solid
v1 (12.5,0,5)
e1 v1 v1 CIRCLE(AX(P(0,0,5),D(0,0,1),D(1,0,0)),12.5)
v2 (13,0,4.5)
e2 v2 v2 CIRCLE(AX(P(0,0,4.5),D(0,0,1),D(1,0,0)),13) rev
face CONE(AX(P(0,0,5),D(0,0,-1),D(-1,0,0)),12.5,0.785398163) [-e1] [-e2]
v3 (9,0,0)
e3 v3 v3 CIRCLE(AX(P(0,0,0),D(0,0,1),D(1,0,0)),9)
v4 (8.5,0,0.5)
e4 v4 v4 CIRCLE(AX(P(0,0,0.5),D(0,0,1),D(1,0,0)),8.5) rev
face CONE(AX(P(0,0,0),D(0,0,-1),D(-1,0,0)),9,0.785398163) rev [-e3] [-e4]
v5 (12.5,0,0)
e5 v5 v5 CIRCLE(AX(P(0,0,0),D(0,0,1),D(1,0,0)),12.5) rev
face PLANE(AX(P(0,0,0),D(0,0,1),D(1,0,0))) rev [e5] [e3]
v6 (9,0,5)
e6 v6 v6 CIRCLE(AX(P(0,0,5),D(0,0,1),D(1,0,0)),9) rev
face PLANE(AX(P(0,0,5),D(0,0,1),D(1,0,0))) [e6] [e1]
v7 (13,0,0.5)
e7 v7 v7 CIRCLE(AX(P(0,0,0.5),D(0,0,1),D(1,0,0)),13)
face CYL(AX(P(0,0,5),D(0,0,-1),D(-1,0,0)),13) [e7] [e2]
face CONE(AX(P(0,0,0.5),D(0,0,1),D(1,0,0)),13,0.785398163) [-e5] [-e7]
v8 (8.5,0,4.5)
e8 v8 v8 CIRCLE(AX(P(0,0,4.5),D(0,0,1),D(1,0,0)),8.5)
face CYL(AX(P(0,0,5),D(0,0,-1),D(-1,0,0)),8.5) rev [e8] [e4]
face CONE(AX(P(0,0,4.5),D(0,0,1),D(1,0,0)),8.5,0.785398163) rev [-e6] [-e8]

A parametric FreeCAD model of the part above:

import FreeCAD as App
import Part
import Sketcher
from FreeCAD import Vector


def edges_at(feature, points):
    """Names of the edges that pass closest to the given points."""
    edges = feature.Shape.Edges
    near = lambda p: min(range(len(edges)), key=lambda i: edges[i].distToShape(Part.Vertex(*p))[0])
    return sorted({f"Edge{near(p) + 1}" for p in points})

doc = App.newDocument("Part")
body = doc.addObject("PartDesign::Body", "Body")

sketch1 = doc.addObject("Sketcher::SketchObject", "Sketch")
body.addObject(sketch1)
sketch1.AttachmentSupport = (doc.XY_Plane, [""])
sketch1.MapMode = "FlatFace"
sketch1.addGeometry(Part.Circle(Vector(0, 0, 0), Vector(0, 0, 1), 13), False)
sketch1.addGeometry(Part.Circle(Vector(0, 0, 0), Vector(0, 0, 1), 8), False)
sketch1.addConstraint(Sketcher.Constraint("Coincident", 0, 3, -1, 1))
sketch1.addConstraint(Sketcher.Constraint("Coincident", 1, 3, -1, 1))
sketch1.addConstraint(Sketcher.Constraint("Diameter", 0, 26.0))
sketch1.addConstraint(Sketcher.Constraint("Diameter", 1, 17.0))
pad1 = doc.addObject("PartDesign::Pad", "Pad")
body.addObject(pad1)
pad1.Profile = sketch1
pad1.Length = 5
doc.recompute()

chamfer = doc.addObject("PartDesign::Chamfer", "Chamfer")
body.addObject(chamfer)
chamfer.Base = (pad1, edges_at(pad1, [
    (-13, 0, 0),
    (-13, 0, 5),
    (-8.5, 0, 0),
    (-8.5, 0, 5),
]))
chamfer.Size = 0.5

doc.recompute()
